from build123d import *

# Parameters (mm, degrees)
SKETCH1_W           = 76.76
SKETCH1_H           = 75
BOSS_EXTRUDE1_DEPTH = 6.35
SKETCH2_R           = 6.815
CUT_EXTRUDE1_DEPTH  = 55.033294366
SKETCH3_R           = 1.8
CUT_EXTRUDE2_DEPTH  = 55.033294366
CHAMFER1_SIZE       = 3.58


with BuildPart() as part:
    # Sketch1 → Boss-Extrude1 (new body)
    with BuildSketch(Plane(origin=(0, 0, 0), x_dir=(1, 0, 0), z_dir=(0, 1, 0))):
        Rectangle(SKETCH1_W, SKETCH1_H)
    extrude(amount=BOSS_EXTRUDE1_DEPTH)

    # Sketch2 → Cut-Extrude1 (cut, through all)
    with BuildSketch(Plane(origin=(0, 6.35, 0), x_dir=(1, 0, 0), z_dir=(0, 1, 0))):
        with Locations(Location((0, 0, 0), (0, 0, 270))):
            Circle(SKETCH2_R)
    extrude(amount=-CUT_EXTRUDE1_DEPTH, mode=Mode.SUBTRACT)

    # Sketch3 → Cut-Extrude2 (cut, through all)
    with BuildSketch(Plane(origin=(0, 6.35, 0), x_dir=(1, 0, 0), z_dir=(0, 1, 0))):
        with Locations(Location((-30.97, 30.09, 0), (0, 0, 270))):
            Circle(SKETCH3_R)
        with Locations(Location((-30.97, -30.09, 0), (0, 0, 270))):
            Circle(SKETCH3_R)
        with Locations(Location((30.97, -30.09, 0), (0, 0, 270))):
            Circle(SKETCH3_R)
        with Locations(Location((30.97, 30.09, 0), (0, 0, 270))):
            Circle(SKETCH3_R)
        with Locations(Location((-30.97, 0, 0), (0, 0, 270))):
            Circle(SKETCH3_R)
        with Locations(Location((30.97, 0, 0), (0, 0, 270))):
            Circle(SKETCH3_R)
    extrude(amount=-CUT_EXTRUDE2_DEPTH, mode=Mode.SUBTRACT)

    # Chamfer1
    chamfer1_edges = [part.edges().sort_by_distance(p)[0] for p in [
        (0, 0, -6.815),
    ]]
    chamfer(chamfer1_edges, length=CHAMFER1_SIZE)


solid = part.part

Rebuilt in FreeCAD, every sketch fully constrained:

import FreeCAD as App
import Part
import Sketcher
from FreeCAD import Vector


def edges_at(feature, points):
    """Names of the edges that pass closest to the given points."""
    edges = feature.Shape.Edges
    near = lambda p: min(range(len(edges)), key=lambda i: edges[i].distToShape(Part.Vertex(*p))[0])
    return sorted({f"Edge{near(p) + 1}" for p in points})

doc = App.newDocument("Part")
body = doc.addObject("PartDesign::Body", "Body")

sketch1 = body.newObject("Sketcher::SketchObject", "Sketch")
sketch1.AttachmentSupport = (doc.getObject("XZ_Plane"), [""])
sketch1.MapMode = "FlatFace"
sketch1.addGeometry([
    Part.LineSegment(Vector(-38, -38, 0), Vector(-38, 38, 0)),
    Part.LineSegment(Vector(-38, 38, 0), Vector(38, 38, 0)),
    Part.LineSegment(Vector(38, 38, 0), Vector(38, -38, 0)),
    Part.LineSegment(Vector(38, -38, 0), Vector(-38, -38, 0)),
], False)
sketch1.addConstraint([
    Sketcher.Constraint("Coincident", 0, 2, 1, 1),
    Sketcher.Constraint("Coincident", 1, 2, 2, 1),
    Sketcher.Constraint("Coincident", 2, 2, 3, 1),
    Sketcher.Constraint("Coincident", 3, 2, 0, 1),
    Sketcher.Constraint("Vertical", 0),
    Sketcher.Constraint("Horizontal", 1),
    Sketcher.Constraint("Vertical", 2),
    Sketcher.Constraint("Horizontal", 3),
    Sketcher.Constraint("Symmetric", 0, 2, 2, 2, -1, 1),
    Sketcher.Constraint("DistanceY", 0, 1, 0, 2, 75.0),
    Sketcher.Constraint("DistanceX", 1, 1, 1, 2, 76.76),
])
pad1 = body.newObject("PartDesign::Pad", "Pad")
pad1.Profile = sketch1
pad1.Length = 6.35
pad1.Reversed = True

sketch2 = body.newObject("Sketcher::SketchObject", "Sketch001")
sketch2.AttachmentSupport = (doc.getObject("XZ_Plane"), [""])
sketch2.MapMode = "FlatFace"
sketch2.AttachmentOffset = App.Placement(Vector(0, 0, -6.35), App.Rotation())
sketch2.addGeometry(Part.Circle(Vector(0, 0, 0), Vector(0, 0, 1), 7), False)
sketch2.addConstraint([
    Sketcher.Constraint("Coincident", 0, 3, -1, 1),
    Sketcher.Constraint("Diameter", 0, 13.63),
])
pocket1 = body.newObject("PartDesign::Pocket", "Pocket")
pocket1.Profile = sketch2
pocket1.Type = "ThroughAll"
pocket1.Reversed = True

sketch3 = body.newObject("Sketcher::SketchObject", "Sketch002")
sketch3.AttachmentSupport = (doc.getObject("XZ_Plane"), [""])
sketch3.MapMode = "FlatFace"
sketch3.AttachmentOffset = App.Placement(Vector(0, 0, -6.35), App.Rotation())
sketch3.addGeometry([
    Part.Circle(Vector(-31, -30.1, 0), Vector(0, 0, 1), 1.8),
    Part.Circle(Vector(-31, 30.1, 0), Vector(0, 0, 1), 1.8),
    Part.Circle(Vector(31, 30.1, 0), Vector(0, 0, 1), 1.8),
    Part.Circle(Vector(31, -30.1, 0), Vector(0, 0, 1), 1.8),
    Part.Circle(Vector(-31, 0, 0), Vector(0, 0, 1), 1.8),
    Part.Circle(Vector(31, 0, 0), Vector(0, 0, 1), 1.8),
], False)
sketch3.addConstraint([
    Sketcher.Constraint("Equal", 0, 1),
    Sketcher.Constraint("Equal", 1, 2),
    Sketcher.Constraint("Equal", 2, 3),
    Sketcher.Constraint("Equal", 3, 4),
    Sketcher.Constraint("Equal", 4, 5),
    Sketcher.Constraint("Symmetric", 0, 3, 2, 3, -1, 1),
    Sketcher.Constraint("Symmetric", 1, 3, 3, 3, -1, 1),
    Sketcher.Constraint("Symmetric", 4, 3, 5, 3, -1, 1),
    Sketcher.Constraint("Symmetric", 1, 3, 2, 3, -2),
    Sketcher.Constraint("PointOnObject", 4, 3, -1),
    Sketcher.Constraint("Vertical", 1, 3, 4, 3),
    Sketcher.Constraint("Diameter", 0, 3.6),
    Sketcher.Constraint("DistanceX", 0, 3, -1, 1, 30.97),
    Sketcher.Constraint("DistanceY", 0, 3, -1, 1, 30.09),
])
pocket2 = body.newObject("PartDesign::Pocket", "Pocket001")
pocket2.Profile = sketch3
pocket2.Type = "ThroughAll"
pocket2.Reversed = True
doc.recompute()

chamfer = body.newObject("PartDesign::Chamfer", "Chamfer")
chamfer.Base = (pocket2, edges_at(pocket2, [(0, 0, -6.815)]))
chamfer.Size = 3.58

doc.recompute()
